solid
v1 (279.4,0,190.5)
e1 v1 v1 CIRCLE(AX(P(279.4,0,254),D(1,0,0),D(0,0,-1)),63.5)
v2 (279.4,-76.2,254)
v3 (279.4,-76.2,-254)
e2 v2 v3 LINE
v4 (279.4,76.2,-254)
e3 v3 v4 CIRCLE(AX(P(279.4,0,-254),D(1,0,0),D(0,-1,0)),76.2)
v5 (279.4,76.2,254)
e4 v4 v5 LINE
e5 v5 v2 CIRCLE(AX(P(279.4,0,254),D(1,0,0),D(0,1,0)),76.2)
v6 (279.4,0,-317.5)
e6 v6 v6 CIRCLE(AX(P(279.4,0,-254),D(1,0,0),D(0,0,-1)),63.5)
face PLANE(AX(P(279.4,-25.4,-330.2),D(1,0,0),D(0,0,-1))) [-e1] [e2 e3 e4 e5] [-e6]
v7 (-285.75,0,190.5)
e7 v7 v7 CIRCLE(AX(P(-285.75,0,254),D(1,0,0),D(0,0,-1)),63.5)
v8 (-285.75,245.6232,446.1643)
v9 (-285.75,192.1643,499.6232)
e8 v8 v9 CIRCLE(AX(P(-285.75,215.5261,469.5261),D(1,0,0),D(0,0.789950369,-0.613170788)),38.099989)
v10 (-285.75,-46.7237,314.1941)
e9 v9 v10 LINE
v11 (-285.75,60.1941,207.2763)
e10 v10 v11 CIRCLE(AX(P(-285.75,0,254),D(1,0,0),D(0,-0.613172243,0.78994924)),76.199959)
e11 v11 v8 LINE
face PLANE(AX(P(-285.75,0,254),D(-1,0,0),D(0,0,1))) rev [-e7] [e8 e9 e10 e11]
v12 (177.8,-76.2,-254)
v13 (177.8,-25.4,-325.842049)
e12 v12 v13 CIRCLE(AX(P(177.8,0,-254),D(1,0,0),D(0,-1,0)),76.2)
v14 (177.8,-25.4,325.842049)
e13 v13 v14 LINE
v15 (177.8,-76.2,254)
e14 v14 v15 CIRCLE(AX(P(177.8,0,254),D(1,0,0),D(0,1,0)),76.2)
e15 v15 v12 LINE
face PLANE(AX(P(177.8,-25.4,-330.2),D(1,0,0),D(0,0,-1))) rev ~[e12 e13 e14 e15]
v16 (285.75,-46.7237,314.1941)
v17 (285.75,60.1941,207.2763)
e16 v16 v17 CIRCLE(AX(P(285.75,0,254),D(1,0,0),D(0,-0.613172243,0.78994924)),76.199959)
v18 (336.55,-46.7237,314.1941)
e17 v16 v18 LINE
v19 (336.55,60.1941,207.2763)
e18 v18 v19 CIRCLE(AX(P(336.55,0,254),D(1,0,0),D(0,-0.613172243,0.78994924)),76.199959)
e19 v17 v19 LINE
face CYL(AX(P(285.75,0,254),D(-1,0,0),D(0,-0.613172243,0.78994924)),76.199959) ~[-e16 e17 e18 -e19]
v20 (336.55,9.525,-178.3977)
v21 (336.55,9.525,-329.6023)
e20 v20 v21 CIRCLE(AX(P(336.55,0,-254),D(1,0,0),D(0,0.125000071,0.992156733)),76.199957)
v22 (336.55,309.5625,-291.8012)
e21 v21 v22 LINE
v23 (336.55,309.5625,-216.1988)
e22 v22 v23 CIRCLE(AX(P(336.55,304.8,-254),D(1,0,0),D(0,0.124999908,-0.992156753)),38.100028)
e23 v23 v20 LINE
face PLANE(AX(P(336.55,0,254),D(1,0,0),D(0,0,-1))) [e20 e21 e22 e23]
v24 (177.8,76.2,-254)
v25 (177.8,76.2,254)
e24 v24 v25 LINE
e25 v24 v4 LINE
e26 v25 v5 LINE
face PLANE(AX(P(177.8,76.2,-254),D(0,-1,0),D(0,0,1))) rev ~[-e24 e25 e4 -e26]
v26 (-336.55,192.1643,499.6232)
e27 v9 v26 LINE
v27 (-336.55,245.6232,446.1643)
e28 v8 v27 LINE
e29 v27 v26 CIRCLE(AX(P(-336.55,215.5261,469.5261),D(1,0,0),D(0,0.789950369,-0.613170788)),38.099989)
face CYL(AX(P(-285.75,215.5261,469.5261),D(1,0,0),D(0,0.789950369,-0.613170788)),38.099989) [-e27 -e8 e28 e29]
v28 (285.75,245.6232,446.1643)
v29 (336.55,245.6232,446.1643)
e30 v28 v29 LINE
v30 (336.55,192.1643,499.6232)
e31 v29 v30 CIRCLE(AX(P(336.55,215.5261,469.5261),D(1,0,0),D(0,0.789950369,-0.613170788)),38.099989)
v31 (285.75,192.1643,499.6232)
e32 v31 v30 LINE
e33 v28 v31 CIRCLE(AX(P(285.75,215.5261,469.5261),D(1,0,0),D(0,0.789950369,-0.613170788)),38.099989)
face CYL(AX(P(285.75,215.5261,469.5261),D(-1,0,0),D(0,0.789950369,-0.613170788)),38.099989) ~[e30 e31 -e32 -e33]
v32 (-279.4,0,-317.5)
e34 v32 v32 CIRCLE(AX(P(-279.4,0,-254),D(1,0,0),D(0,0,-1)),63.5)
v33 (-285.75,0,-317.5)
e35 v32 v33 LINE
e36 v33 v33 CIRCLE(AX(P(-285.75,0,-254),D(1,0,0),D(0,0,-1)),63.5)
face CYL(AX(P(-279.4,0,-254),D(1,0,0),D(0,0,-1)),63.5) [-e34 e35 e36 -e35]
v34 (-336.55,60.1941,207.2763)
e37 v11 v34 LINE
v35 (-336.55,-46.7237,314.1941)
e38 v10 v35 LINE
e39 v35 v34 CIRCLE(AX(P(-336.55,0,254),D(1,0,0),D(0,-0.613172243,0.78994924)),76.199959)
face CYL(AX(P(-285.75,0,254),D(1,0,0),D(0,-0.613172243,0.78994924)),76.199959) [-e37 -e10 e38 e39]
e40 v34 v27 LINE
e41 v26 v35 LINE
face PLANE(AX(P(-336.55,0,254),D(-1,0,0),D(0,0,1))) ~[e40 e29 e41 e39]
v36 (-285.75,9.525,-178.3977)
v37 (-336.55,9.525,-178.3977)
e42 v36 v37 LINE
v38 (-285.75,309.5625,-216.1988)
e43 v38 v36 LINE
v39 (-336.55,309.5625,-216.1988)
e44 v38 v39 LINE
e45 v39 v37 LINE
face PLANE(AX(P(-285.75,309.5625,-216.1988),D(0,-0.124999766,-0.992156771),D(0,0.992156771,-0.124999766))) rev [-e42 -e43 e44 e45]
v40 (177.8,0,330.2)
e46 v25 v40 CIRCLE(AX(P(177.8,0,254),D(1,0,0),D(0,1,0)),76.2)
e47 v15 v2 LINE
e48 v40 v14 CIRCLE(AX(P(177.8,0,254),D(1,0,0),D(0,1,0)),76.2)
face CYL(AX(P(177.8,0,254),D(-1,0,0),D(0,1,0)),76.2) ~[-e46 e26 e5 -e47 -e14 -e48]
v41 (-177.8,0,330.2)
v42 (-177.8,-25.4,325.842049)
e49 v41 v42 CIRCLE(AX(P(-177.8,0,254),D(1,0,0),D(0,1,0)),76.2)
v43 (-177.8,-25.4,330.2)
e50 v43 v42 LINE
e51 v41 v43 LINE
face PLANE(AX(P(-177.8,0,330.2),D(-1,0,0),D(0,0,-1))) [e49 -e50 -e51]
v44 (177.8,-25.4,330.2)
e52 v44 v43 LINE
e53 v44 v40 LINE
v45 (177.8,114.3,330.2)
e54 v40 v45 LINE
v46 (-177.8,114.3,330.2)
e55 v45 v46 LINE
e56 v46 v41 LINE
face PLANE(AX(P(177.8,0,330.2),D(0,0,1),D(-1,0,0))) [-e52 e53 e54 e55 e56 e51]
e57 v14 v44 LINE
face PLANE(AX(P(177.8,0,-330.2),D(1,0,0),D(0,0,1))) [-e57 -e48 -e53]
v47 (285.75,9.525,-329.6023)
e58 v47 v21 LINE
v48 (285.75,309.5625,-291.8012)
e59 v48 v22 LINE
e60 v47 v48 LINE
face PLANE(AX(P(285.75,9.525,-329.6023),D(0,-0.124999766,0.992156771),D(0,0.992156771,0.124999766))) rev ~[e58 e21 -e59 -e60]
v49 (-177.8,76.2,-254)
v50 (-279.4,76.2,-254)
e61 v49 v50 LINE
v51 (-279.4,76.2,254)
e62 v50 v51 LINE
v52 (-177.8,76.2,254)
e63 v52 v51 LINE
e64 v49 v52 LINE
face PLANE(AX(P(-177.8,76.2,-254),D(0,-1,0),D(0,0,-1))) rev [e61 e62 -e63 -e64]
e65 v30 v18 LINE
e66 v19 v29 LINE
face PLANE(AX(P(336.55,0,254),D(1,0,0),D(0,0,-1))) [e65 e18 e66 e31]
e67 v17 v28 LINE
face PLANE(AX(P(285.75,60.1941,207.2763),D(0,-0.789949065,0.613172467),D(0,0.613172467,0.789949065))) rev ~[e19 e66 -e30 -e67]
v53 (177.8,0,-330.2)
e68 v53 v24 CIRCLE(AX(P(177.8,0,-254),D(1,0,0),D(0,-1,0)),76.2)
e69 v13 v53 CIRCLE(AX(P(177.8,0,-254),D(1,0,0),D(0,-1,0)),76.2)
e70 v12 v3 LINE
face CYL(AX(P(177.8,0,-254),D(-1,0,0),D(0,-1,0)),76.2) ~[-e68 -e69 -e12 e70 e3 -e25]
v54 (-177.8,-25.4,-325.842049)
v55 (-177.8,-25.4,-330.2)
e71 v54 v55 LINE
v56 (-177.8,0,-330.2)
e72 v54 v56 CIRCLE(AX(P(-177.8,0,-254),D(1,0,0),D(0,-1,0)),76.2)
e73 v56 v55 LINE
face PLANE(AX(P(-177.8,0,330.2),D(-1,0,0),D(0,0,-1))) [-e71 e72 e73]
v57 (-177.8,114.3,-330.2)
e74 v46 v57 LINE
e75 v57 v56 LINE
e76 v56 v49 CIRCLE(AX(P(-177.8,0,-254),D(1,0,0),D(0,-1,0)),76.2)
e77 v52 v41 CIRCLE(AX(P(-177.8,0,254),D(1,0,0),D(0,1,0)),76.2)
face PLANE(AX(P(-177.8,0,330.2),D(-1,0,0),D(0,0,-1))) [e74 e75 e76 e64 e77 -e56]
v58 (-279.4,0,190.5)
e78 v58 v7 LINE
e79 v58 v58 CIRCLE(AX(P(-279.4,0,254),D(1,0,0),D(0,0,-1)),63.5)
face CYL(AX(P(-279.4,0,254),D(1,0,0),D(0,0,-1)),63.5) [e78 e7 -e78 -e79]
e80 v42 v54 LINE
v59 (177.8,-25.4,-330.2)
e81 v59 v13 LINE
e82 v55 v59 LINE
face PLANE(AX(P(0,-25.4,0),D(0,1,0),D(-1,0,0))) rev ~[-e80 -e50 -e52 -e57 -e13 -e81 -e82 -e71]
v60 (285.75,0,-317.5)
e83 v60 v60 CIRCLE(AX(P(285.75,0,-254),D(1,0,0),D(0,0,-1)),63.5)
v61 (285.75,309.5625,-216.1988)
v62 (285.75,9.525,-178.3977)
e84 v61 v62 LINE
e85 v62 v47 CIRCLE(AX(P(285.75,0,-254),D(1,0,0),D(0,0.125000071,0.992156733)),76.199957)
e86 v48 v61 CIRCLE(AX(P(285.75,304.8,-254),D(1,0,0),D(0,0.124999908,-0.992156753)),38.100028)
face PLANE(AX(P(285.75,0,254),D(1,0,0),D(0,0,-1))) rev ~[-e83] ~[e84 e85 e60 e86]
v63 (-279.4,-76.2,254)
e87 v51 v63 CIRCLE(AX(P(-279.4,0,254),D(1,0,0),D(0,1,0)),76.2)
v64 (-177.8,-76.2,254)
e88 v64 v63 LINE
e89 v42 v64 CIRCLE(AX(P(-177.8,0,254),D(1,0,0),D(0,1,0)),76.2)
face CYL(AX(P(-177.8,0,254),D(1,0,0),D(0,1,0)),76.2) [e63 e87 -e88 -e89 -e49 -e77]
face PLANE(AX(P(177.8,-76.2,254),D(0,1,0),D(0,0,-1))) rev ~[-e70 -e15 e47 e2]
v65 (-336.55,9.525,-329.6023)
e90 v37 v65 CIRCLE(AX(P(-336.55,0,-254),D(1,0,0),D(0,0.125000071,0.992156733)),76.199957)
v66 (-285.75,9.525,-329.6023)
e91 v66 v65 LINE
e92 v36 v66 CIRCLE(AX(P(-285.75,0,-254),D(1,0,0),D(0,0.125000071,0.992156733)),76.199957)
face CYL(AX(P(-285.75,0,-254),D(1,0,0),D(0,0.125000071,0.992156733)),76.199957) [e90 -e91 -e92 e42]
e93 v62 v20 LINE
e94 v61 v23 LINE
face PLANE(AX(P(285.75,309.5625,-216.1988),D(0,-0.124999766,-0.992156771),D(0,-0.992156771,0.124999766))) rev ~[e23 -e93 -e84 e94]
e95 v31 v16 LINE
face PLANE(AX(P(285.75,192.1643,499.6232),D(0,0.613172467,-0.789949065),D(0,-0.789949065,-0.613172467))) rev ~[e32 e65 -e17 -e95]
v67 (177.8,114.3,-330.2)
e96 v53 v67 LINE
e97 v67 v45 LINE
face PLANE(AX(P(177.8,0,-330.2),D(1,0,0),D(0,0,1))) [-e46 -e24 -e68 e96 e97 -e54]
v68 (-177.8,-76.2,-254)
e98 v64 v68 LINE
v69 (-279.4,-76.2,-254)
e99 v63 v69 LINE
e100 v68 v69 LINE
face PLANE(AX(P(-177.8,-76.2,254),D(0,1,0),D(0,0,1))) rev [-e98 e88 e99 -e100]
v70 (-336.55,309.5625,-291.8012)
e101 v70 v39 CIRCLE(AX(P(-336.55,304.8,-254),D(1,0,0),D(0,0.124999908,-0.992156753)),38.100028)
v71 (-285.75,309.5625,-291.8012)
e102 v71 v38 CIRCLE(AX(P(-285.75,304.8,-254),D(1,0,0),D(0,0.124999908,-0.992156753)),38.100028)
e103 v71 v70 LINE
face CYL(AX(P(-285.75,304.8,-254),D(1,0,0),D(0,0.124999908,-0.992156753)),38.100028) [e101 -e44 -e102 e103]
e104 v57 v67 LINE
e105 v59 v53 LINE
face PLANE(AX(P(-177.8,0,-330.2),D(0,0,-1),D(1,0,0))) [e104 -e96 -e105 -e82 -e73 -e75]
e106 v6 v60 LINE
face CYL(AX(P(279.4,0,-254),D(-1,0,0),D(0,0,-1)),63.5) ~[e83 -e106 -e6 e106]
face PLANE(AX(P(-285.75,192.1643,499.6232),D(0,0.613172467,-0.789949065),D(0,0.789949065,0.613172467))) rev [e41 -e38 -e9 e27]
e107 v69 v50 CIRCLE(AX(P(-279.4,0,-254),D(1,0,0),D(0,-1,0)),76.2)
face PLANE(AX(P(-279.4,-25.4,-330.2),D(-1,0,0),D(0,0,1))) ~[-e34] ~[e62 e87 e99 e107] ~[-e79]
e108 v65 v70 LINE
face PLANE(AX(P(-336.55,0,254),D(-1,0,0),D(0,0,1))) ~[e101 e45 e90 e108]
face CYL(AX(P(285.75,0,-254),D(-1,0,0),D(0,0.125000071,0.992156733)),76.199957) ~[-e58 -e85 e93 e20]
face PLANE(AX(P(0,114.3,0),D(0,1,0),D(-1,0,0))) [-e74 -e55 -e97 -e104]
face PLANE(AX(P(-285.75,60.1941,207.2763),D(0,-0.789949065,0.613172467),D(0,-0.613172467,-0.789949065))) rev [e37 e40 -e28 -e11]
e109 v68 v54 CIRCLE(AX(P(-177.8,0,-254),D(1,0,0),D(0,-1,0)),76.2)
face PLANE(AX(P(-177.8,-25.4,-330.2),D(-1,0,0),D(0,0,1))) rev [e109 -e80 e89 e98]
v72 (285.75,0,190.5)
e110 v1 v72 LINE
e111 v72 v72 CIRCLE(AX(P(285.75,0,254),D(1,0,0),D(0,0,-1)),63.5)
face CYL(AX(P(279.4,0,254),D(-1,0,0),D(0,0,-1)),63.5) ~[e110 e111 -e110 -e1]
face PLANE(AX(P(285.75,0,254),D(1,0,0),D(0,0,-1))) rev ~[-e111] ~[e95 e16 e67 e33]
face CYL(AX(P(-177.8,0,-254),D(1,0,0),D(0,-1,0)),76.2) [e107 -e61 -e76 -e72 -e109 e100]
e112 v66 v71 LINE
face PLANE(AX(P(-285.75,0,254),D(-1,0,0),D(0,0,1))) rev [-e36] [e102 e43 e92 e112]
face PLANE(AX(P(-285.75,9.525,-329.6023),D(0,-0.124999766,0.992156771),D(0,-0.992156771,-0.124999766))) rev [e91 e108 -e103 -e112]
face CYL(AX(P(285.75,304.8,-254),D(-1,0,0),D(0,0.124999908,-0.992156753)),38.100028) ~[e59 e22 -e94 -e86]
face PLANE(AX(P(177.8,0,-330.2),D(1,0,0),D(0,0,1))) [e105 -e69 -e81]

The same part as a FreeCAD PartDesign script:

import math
import FreeCAD as App
import Part
import Sketcher

V = App.Vector
Q = App.Units.Quantity


def add_polygon(sketch, points):
    """Adds a closed chain of lines whose ends are joined by coincident constraints."""
    first, n = sketch.GeometryCount, len(points)
    for a, b in zip(points, points[1:] + points[:1]):
        sketch.addGeometry(Part.LineSegment(App.Vector(*a, 0), App.Vector(*b, 0)), False)
    for i in range(n):
        sketch.addConstraint(Sketcher.Constraint("Coincident", first + i, 2, first + (i + 1) % n, 1))

doc = App.newDocument("Part")
params = doc.addObject("Spreadsheet::Sheet", "Params")
for row, (alias, value) in enumerate([
    ("sketch1_width", "14 in"),
    ("sketch1_height", "26 in"),
    ("pad1_length", "4.5 in"),
    ("pad1_length2", "1 in"),
    ("sketch2_radius", "3 in"),
    ("pad2_length", "4 in"),
    ("sketch3_diameter", "5 in"),
    ("pad3_length", "0.25 in"),
    ("sketch4_radius", "1.5 in"),
    ("sketch4_radius2", "3 in"),
    ("pad4_length", "2 in"),
], start=1):
    params.set(f"A{row}", alias)
    params.set(f"B{row}", "=" + value)
    params.setAlias(f"B{row}", alias)

body = doc.addObject("PartDesign::Body", "Body")

# Sketch on XZ plane
sketch1 = doc.addObject("Sketcher::SketchObject", "Sketch")
body.addObject(sketch1)
sketch1.AttachmentSupport = (doc.XZ_Plane, [""])
sketch1.MapMode = "FlatFace"
add_polygon(sketch1, [(-178, 330), (178, 330), (178, -330), (-178, -330)])  # lines 0-3
sketch1.addConstraint([
    Sketcher.Constraint("Horizontal", 0),
    Sketcher.Constraint("Vertical", 1),
    Sketcher.Constraint("Horizontal", 2),
    Sketcher.Constraint("Vertical", 3),
    Sketcher.Constraint("Symmetric", 0, 2, 2, 2, -1, 1),
    Sketcher.Constraint("DistanceX", 0, 1, 0, 2, Q("14 in")),
    Sketcher.Constraint("DistanceY", 1, 2, 1, 1, Q("26 in")),
])
sketch1.setExpression("Constraints[9]", "Params.sketch1_width")
sketch1.setExpression("Constraints[10]", "Params.sketch1_height")
pad1 = doc.addObject("PartDesign::Pad", "Pad")
body.addObject(pad1)
pad1.Profile = sketch1
pad1.Type = "TwoLengths"
pad1.setExpression("Length", "Params.pad1_length")
pad1.setExpression("Length2", "Params.pad1_length2")
pad1.Reversed = True

# Sketch on YZ plane
sketch2 = doc.addObject("Sketcher::SketchObject", "Sketch001")
body.addObject(sketch2)
sketch2.AttachmentSupport = (doc.YZ_Plane, [""])
sketch2.MapMode = "FlatFace"
sketch2.AttachmentOffset = App.Placement(V(0, 0, 7 * 25.4), App.Rotation())
sketch2.addGeometry([
    Part.ArcOfCircle(Part.Circle(V(0, 254, 0), V(0, 0, 1), 76), math.radians(0), math.radians(180)),
    Part.LineSegment(V(-76, 254, 0), V(-76, -254, 0)),
    Part.ArcOfCircle(Part.Circle(V(0, -254, 0), V(0, 0, 1), 76), math.radians(180), math.radians(360)),
    Part.LineSegment(V(76, -254, 0), V(76, 254, 0)),
], False)
sketch2.addConstraint([
    Sketcher.Constraint("Tangent", 0, 2, 1, 1),
    Sketcher.Constraint("Tangent", 1, 2, 2, 1),
    Sketcher.Constraint("Tangent", 2, 2, 3, 1),
    Sketcher.Constraint("Tangent", 3, 2, 0, 1),
    Sketcher.Constraint("Vertical", 1),
    Sketcher.Constraint("Vertical", 3),
    Sketcher.Constraint("Symmetric", 0, 3, 2, 3, -1, 1),
    Sketcher.Constraint("Radius", 0, Q("3 in")),
    Sketcher.Constraint("DistanceY", -1, 1, 0, 3, Q("10 in")),
])
sketch2.setExpression("Constraints[7]", "Params.sketch2_radius")
pad2 = doc.addObject("PartDesign::Pad", "Pad001")
body.addObject(pad2)
pad2.Profile = sketch2
pad2.setExpression("Length", "Params.pad2_length")

# Sketch on YZ plane
sketch3 = doc.addObject("Sketcher::SketchObject", "Sketch002")
body.addObject(sketch3)
sketch3.AttachmentSupport = (doc.YZ_Plane, [""])
sketch3.MapMode = "FlatFace"
sketch3.AttachmentOffset = App.Placement(V(0, 0, 11 * 25.4), App.Rotation())
sketch3.addGeometry([
    Part.Circle(V(0, 254, 0), V(0, 0, 1), 64),
    Part.Circle(V(0, -254, 0), V(0, 0, 1), 64),
], False)
sketch3.addConstraint([
    Sketcher.Constraint("Equal", 0, 1),
    Sketcher.Constraint("Symmetric", 0, 3, 1, 3, -1, 1),
    Sketcher.Constraint("PointOnObject", 0, 3, -2),
    Sketcher.Constraint("Diameter", 0, Q("5 in")),
    Sketcher.Constraint("DistanceY", -1, 1, 0, 3, Q("10 in")),
])
sketch3.setExpression("Constraints[3]", "Params.sketch3_diameter")
pad3 = doc.addObject("PartDesign::Pad", "Pad002")
body.addObject(pad3)
pad3.Profile = sketch3
pad3.setExpression("Length", "Params.pad3_length")

# Sketch on YZ plane
sketch4 = doc.addObject("Sketcher::SketchObject", "Sketch003")
body.addObject(sketch4)
sketch4.AttachmentSupport = (doc.YZ_Plane, [""])
sketch4.MapMode = "FlatFace"
sketch4.AttachmentOffset = App.Placement(V(0, 0, 11.25 * 25.4), App.Rotation())
sketch4.addGeometry([
    Part.ArcOfCircle(Part.Circle(V(0, 254, 0), V(0, 0, 1), 76), math.radians(128), math.radians(322)),  # 0
    Part.LineSegment(V(60, 207, 0), V(246, 446, 0)),  # 1
    Part.ArcOfCircle(Part.Circle(V(216, 470, 0), V(0, 0, 1), 38), math.radians(-38), math.radians(128)),  # 2
    Part.LineSegment(V(192, 500, 0), V(-47, 314, 0)),  # 3
    Part.ArcOfCircle(Part.Circle(V(0, -254, 0), V(0, 0, 1), 76), math.radians(83), math.radians(277)),  # 4
    Part.LineSegment(V(10, -330, 0), V(310, -292, 0)),  # 5
    Part.ArcOfCircle(Part.Circle(V(305, -254, 0), V(0, 0, 1), 38), math.radians(-83), math.radians(83)),  # 6
    Part.LineSegment(V(310, -216, 0), V(10, -178, 0)),  # 7
], False)
sketch4.addConstraint([
    Sketcher.Constraint("Tangent", 0, 2, 1, 1),
    Sketcher.Constraint("Tangent", 1, 2, 2, 1),
    Sketcher.Constraint("Tangent", 2, 2, 3, 1),
    Sketcher.Constraint("Tangent", 3, 2, 0, 1),
    Sketcher.Constraint("Tangent", 4, 2, 5, 1),
    Sketcher.Constraint("Tangent", 5, 2, 6, 1),
    Sketcher.Constraint("Tangent", 6, 2, 7, 1),
    Sketcher.Constraint("Tangent", 7, 2, 4, 1),
    Sketcher.Constraint("Equal", 0, 4),
    Sketcher.Constraint("Equal", 2, 6),
    Sketcher.Constraint("Symmetric", 0, 3, 4, 3, -1, 1),
    Sketcher.Constraint("PointOnObject", 0, 3, -2),
    Sketcher.Constraint("Horizontal", 4, 3, 6, 3),
    Sketcher.Constraint("Equal", 3, 5),
    Sketcher.Constraint("Radius", 2, Q("1.5 in")),
    Sketcher.Constraint("DistanceX", -1, 1, 6, 3, Q("12 in")),
    Sketcher.Constraint("Radius", 0, Q("3 in")),
    Sketcher.Constraint("DistanceY", -1, 1, 0, 3, Q("10 in")),
    Sketcher.Constraint("Angle", 1, Q("52.1808 deg")),
])
sketch4.setExpression("Constraints[14]", "Params.sketch4_radius")
sketch4.setExpression("Constraints[16]", "Params.sketch4_radius2")
pad4 = doc.addObject("PartDesign::Pad", "Pad003")
body.addObject(pad4)
pad4.Profile = sketch4
pad4.setExpression("Length", "Params.pad4_length")
doc.recompute()

mirrored = doc.addObject("PartDesign::Mirrored", "Mirrored")
body.addObject(mirrored)
mirrored.Originals = [pad2, pad4, pad3]
mirrored.MirrorPlane = (doc.YZ_Plane, [""])
body.Tip = mirrored

doc.recompute()
